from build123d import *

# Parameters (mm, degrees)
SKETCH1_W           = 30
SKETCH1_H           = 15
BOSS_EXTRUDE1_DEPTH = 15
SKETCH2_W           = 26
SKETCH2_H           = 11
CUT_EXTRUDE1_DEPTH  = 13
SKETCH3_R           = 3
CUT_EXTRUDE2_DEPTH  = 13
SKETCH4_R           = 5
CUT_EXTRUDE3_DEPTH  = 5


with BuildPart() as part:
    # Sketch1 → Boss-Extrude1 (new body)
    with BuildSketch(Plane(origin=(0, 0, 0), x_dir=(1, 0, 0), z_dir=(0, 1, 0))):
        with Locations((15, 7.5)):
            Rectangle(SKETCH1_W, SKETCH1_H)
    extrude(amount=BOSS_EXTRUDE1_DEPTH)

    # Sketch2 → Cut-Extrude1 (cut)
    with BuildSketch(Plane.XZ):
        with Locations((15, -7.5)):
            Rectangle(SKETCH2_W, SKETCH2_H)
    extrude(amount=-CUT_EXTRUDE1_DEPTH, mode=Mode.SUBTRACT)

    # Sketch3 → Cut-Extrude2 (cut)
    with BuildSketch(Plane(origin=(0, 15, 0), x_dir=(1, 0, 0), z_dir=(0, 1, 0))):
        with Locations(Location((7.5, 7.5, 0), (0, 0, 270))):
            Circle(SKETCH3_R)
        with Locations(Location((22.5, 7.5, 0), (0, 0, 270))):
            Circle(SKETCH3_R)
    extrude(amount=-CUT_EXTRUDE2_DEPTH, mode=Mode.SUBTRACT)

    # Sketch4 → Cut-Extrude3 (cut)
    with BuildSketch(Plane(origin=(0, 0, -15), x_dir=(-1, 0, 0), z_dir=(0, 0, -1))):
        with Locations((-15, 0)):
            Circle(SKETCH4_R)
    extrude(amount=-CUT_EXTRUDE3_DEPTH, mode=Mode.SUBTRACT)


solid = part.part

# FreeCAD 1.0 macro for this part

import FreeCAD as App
import Part
import Sketcher
from FreeCAD import Vector
Q = App.Units.Quantity


def add_polygon(sketch, points):
    """Adds a closed chain of lines whose ends are joined by coincident constraints."""
    first, n = sketch.GeometryCount, len(points)
    for a, b in zip(points, points[1:] + points[:1]):
        sketch.addGeometry(Part.LineSegment(App.Vector(*a, 0), App.Vector(*b, 0)), False)
    for i in range(n):
        sketch.addConstraint(Sketcher.Constraint("Coincident", first + i, 2, first + (i + 1) % n, 1))

doc = App.newDocument("Part")
body = doc.addObject("PartDesign::Body", "Body")

sketch1 = body.newObject("Sketcher::SketchObject", "Sketch")
sketch1.AttachmentSupport = (doc.getObject("XZ_Plane"), [""])
sketch1.MapMode = "FlatFace"
add_polygon(sketch1, [(0, -15), (0, 0), (30, 0), (30, -15)])
sketch1.addConstraint([
    Sketcher.Constraint("Vertical", 0),
    Sketcher.Constraint("Horizontal", 1),
    Sketcher.Constraint("Vertical", 2),
    Sketcher.Constraint("Horizontal", 3),
    Sketcher.Constraint("Coincident", 0, 2, -1, 1),
    Sketcher.Constraint("DistanceX", 1, 1, 1, 2, Q("30 mm")),
    Sketcher.Constraint("DistanceY", 0, 1, 0, 2, Q("15 mm")),
])
pad1 = body.newObject("PartDesign::Pad", "Pad")
pad1.Profile = sketch1
pad1.Length = 15
pad1.Reversed = True

sketch2 = body.newObject("Sketcher::SketchObject", "Sketch001")
sketch2.AttachmentSupport = (doc.getObject("XZ_Plane"), [""])
sketch2.MapMode = "FlatFace"
add_polygon(sketch2, [(2, -2), (2, -13), (28, -13), (28, -2)])
sketch2.addConstraint([
    Sketcher.Constraint("Vertical", 0),
    Sketcher.Constraint("Horizontal", 1),
    Sketcher.Constraint("Vertical", 2),
    Sketcher.Constraint("Horizontal", 3),
    Sketcher.Constraint("DistanceX", 1, 1, 1, 2, Q("26 mm")),
    Sketcher.Constraint("DistanceY", 0, 2, 0, 1, Q("11 mm")),
    Sketcher.Constraint("DistanceX", -1, 1, 0, 2, Q("2 mm")),
    Sketcher.Constraint("DistanceY", 0, 2, -1, 1, Q("13 mm")),
])
pocket1 = body.newObject("PartDesign::Pocket", "Pocket")
pocket1.Profile = sketch2
pocket1.Length = 13

sketch3 = body.newObject("Sketcher::SketchObject", "Sketch002")
sketch3.AttachmentSupport = (doc.getObject("XZ_Plane"), [""])
sketch3.MapMode = "FlatFace"
sketch3.AttachmentOffset = App.Placement(Vector(0, 0, -15), App.Rotation())
sketch3.addGeometry([
    Part.Circle(Vector(7.5, -7.5, 0), Vector(0, 0, 1), 3),
    Part.Circle(Vector(22.5, -7.5, 0), Vector(0, 0, 1), 3),
], False)
sketch3.addConstraint([
    Sketcher.Constraint("Equal", 0, 1),
    Sketcher.Constraint("Horizontal", 0, 3, 1, 3),
    Sketcher.Constraint("Diameter", 0, Q("6 mm")),
    Sketcher.Constraint("DistanceX", 0, 3, 1, 3, Q("15 mm")),
    Sketcher.Constraint("DistanceX", -1, 1, 0, 3, Q("7.5 mm")),
    Sketcher.Constraint("DistanceY", 0, 3, -1, 1, Q("7.5 mm")),
])
pocket2 = body.newObject("PartDesign::Pocket", "Pocket001")
pocket2.Profile = sketch3
pocket2.Length = 13
pocket2.Reversed = True

sketch4 = body.newObject("Sketcher::SketchObject", "Sketch003")
sketch4.AttachmentSupport = (doc.getObject("XY_Plane"), [""])
sketch4.MapMode = "FlatFace"
sketch4.AttachmentOffset = App.Placement(Vector(0, 0, -15), App.Rotation())
sketch4.addGeometry(Part.Circle(Vector(15, 0, 0), Vector(0, 0, 1), 5), False)
sketch4.addConstraint([
    Sketcher.Constraint("PointOnObject", 0, 3, -1),
    Sketcher.Constraint("Diameter", 0, Q("10 mm")),
    Sketcher.Constraint("DistanceX", -1, 1, 0, 3, Q("15 mm")),
])
pocket3 = body.newObject("PartDesign::Pocket", "Pocket002")
pocket3.Profile = sketch4
pocket3.Length = 5
pocket3.Reversed = True

doc.recompute()
